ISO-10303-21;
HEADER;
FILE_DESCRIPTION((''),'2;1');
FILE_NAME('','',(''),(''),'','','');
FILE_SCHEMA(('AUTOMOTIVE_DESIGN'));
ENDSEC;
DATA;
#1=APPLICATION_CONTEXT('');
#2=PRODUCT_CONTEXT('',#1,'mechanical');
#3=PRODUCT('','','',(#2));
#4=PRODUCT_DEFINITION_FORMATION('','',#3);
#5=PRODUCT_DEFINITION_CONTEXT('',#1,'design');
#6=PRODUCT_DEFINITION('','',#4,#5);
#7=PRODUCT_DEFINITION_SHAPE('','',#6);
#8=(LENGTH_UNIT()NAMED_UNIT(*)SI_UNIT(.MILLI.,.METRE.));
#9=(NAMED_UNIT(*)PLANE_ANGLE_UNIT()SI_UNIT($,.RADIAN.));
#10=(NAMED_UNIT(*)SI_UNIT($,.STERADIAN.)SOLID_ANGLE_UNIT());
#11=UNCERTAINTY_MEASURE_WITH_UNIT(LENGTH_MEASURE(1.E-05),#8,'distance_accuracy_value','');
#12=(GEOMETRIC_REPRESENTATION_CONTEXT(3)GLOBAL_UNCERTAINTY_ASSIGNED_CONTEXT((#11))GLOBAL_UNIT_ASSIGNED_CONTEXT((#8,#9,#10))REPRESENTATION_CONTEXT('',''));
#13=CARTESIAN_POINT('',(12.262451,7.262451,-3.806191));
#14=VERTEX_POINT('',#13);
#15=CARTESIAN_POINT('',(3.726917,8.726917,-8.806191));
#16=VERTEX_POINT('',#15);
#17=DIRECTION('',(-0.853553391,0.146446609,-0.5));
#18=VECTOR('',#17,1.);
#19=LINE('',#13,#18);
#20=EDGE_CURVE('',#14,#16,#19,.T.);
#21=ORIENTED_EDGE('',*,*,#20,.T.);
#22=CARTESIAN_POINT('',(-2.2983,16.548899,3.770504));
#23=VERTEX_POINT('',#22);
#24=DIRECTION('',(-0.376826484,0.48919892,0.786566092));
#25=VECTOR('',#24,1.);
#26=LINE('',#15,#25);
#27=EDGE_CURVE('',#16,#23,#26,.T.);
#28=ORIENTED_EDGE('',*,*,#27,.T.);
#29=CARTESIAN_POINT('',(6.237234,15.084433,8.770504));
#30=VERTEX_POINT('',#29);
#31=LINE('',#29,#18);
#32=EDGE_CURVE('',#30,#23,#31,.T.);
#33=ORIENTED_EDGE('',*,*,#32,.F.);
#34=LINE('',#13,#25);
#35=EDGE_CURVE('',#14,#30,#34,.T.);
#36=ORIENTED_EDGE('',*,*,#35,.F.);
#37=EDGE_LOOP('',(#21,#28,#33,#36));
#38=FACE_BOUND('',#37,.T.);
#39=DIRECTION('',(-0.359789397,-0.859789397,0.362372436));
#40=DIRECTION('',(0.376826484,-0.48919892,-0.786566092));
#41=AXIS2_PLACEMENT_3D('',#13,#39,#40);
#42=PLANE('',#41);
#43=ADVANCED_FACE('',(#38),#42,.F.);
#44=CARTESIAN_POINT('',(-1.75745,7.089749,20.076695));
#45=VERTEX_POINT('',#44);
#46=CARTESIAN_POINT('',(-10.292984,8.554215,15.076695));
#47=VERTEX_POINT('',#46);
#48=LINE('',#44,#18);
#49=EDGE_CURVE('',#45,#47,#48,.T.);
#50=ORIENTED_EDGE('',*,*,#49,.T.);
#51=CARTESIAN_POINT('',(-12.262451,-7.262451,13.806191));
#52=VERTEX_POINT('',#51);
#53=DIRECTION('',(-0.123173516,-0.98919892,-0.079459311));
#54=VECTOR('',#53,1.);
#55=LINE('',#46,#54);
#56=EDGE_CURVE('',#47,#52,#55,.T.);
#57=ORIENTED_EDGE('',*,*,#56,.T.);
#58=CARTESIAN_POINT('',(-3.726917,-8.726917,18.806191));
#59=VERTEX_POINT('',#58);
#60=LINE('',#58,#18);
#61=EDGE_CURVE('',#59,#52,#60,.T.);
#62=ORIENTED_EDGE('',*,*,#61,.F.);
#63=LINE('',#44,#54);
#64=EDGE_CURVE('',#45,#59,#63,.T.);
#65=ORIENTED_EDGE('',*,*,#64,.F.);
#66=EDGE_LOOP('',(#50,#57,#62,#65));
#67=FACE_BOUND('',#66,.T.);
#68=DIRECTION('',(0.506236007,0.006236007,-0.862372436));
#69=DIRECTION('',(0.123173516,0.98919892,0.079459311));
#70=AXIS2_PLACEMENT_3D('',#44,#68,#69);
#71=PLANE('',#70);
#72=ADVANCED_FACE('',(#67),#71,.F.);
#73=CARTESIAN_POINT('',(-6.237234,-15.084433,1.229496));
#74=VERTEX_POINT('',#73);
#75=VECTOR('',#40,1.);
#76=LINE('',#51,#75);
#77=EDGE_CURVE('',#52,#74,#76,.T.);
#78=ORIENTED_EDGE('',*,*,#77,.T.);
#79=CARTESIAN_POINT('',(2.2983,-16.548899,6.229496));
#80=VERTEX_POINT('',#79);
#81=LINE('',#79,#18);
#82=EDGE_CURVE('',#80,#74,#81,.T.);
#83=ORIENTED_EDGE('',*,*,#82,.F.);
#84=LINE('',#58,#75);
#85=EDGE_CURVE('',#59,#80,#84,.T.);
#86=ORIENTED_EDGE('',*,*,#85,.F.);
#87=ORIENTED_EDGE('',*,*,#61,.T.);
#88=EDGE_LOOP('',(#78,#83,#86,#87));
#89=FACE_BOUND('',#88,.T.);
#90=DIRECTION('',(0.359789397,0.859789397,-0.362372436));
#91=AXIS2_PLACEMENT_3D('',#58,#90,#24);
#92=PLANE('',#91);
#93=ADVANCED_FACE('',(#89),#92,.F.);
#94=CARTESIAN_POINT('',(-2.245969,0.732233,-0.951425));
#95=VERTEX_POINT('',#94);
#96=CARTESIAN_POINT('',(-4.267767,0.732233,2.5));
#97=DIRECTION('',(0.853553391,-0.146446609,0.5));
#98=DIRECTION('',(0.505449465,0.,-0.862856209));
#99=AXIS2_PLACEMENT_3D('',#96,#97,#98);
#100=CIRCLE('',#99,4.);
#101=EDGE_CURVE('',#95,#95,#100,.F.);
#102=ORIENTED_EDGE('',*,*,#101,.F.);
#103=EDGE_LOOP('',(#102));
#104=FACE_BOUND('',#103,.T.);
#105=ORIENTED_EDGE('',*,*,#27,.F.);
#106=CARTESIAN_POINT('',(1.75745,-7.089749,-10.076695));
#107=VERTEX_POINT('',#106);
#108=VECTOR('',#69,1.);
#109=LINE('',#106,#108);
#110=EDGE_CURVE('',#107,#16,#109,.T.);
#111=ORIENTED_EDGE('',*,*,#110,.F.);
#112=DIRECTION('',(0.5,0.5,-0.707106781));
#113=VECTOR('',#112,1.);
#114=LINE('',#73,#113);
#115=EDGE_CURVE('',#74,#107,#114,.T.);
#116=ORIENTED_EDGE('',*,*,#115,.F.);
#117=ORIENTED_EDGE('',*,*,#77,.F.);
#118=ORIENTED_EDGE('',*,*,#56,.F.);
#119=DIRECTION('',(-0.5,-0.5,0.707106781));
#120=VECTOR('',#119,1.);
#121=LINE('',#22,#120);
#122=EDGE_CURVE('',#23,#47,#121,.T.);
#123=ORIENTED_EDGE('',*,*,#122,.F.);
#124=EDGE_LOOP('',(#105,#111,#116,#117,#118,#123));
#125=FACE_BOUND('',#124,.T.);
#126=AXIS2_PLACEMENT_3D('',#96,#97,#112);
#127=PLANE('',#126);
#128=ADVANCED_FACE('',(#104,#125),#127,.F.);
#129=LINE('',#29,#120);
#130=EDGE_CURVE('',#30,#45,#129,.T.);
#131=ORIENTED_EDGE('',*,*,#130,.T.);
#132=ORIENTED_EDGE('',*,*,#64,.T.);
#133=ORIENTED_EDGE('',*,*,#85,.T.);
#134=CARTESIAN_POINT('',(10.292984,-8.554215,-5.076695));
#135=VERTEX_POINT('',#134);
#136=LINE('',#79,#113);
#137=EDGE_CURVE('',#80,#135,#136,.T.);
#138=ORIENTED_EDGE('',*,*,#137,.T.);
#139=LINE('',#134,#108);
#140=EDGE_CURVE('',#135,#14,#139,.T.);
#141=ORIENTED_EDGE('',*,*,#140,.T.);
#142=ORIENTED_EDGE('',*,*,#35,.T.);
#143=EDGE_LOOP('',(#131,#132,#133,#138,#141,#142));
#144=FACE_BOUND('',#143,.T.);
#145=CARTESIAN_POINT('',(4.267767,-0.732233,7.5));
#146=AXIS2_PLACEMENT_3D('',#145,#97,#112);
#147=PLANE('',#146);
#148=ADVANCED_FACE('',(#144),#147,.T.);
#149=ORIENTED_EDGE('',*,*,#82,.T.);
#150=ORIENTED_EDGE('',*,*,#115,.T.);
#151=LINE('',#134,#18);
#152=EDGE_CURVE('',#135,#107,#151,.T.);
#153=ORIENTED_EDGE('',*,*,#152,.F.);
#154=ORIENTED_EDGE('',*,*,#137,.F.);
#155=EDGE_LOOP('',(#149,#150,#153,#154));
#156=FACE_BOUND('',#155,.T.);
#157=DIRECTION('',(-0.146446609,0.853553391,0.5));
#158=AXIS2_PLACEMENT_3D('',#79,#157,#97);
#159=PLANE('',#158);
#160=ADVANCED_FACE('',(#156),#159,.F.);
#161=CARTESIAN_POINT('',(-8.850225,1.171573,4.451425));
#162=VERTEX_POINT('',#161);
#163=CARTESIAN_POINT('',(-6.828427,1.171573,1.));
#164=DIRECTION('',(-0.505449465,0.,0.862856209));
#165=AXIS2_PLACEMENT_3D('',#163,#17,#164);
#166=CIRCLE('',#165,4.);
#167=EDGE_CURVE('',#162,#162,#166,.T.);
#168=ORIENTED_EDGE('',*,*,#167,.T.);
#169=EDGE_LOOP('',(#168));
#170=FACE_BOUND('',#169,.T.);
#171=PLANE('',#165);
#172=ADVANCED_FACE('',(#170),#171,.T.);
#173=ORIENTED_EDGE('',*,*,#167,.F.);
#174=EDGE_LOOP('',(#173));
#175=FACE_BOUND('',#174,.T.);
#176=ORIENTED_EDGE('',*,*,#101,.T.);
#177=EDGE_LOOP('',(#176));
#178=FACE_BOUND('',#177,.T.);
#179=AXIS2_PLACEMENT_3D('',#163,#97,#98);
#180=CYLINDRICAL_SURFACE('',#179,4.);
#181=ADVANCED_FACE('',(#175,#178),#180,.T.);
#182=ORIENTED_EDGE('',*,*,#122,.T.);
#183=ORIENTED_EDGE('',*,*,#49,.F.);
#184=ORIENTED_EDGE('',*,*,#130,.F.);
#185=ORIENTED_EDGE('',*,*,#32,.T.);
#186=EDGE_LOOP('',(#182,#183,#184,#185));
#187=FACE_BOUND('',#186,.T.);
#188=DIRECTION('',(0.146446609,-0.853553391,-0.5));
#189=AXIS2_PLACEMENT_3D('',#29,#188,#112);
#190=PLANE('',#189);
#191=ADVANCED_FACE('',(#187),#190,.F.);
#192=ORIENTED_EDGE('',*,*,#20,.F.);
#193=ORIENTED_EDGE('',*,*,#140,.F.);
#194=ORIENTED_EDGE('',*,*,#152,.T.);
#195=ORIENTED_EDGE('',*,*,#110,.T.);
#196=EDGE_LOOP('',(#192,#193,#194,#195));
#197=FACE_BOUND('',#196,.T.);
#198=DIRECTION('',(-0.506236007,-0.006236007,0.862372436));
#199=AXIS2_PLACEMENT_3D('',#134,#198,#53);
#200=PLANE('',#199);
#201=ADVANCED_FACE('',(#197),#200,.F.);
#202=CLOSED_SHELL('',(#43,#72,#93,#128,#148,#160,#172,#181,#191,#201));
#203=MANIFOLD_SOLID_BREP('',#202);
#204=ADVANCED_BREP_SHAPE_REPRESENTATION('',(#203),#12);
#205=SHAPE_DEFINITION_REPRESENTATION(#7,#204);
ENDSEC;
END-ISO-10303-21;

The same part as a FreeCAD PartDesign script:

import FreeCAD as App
import Part
import Sketcher
from FreeCAD import Vector
Q = App.Units.Quantity

doc = App.newDocument("Part")
body = doc.addObject("PartDesign::Body", "Body")

# Sketch on XY plane
sketch1 = body.newObject("Sketcher::SketchObject", "Sketch")
sketch1.AttachmentSupport = (doc.getObject("XY_Plane"), [""])
sketch1.MapMode = "FlatFace"
sketch1.addGeometry([
    Part.LineSegment(Vector(8, 14, 0), Vector(-8, 14, 0)),  # 0
    Part.LineSegment(Vector(-8, 14, 0), Vector(-16, 0, 0)),  # 1
    Part.LineSegment(Vector(-16, 0, 0), Vector(-8, -14, 0)),  # 2
    Part.LineSegment(Vector(-8, -14, 0), Vector(8, -14, 0)),  # 3
    Part.LineSegment(Vector(8, -14, 0), Vector(16, 0, 0)),  # 4
    Part.LineSegment(Vector(16, 0, 0), Vector(8, 14, 0)),  # 5
], False)
sketch1.addConstraint([
    Sketcher.Constraint("Coincident", 0, 2, 1, 1),
    Sketcher.Constraint("Coincident", 1, 2, 2, 1),
    Sketcher.Constraint("Coincident", 2, 2, 3, 1),
    Sketcher.Constraint("Coincident", 3, 2, 4, 1),
    Sketcher.Constraint("Coincident", 4, 2, 5, 1),
    Sketcher.Constraint("Coincident", 5, 2, 0, 1),
    Sketcher.Constraint("Horizontal", 0),
    Sketcher.Constraint("Horizontal", 3),
    Sketcher.Constraint("Symmetric", 0, 2, 3, 2, -1, 1),
    Sketcher.Constraint("Symmetric", 1, 2, 4, 2, -1, 1),
    Sketcher.Constraint("PointOnObject", 1, 2, -1),
    Sketcher.Constraint("Parallel", 2, 5),
    Sketcher.Constraint("Vertical", 0, 2, 2, 2),
    Sketcher.Constraint("Angle", 1, Q("-120 deg")),
    Sketcher.Constraint("DistanceX", 0, 2, 0, 1, 15.989368),
    Sketcher.Constraint("DistanceY", -1, 1, 0, 2, 13.847199),
])
pad1 = body.newObject("PartDesign::Pad", "Pad")
pad1.Profile = sketch1
pad1.Length = 10
body2 = doc.addObject("PartDesign::Body", "Body001")
doc.recompute()

body.Placement = App.Placement(Vector(-4.267767, 0.732233, 2.5), App.Rotation(Vector(0.357406744, 0.86285621, 0.357406744), 64.736826))
boolean = body2.newObject("PartDesign::Boolean", "Boolean")
boolean.Type = "Fuse"
boolean.addObjects([body])

# Sketch on an angled plane
sketch2 = body2.newObject("Sketcher::SketchObject", "Sketch001")
sketch2.Placement = App.Placement(Vector(-2.133883, 0.366117, -1.25), App.Rotation(Vector(-0.49279928, 0.084550989, 0.866025404), Vector(0.169101978, 0.98559856, 0), Vector(-0.853553391, 0.146446609, -0.5), "ZXY"))
sketch2.addGeometry(Part.Circle(Vector(4.3, 0, 0), Vector(0, 0, 1), 4), False)
sketch2.addConstraint([
    Sketcher.Constraint("PointOnObject", 0, 3, -1),
    Sketcher.Constraint("Diameter", 0, 8.0),
    Sketcher.Constraint("DistanceX", -1, 1, 0, 3, 4.330127),
])
pad2 = body2.newObject("PartDesign::Pad", "Pad001")
pad2.Profile = sketch2
pad2.Length = 3

doc.recompute()
